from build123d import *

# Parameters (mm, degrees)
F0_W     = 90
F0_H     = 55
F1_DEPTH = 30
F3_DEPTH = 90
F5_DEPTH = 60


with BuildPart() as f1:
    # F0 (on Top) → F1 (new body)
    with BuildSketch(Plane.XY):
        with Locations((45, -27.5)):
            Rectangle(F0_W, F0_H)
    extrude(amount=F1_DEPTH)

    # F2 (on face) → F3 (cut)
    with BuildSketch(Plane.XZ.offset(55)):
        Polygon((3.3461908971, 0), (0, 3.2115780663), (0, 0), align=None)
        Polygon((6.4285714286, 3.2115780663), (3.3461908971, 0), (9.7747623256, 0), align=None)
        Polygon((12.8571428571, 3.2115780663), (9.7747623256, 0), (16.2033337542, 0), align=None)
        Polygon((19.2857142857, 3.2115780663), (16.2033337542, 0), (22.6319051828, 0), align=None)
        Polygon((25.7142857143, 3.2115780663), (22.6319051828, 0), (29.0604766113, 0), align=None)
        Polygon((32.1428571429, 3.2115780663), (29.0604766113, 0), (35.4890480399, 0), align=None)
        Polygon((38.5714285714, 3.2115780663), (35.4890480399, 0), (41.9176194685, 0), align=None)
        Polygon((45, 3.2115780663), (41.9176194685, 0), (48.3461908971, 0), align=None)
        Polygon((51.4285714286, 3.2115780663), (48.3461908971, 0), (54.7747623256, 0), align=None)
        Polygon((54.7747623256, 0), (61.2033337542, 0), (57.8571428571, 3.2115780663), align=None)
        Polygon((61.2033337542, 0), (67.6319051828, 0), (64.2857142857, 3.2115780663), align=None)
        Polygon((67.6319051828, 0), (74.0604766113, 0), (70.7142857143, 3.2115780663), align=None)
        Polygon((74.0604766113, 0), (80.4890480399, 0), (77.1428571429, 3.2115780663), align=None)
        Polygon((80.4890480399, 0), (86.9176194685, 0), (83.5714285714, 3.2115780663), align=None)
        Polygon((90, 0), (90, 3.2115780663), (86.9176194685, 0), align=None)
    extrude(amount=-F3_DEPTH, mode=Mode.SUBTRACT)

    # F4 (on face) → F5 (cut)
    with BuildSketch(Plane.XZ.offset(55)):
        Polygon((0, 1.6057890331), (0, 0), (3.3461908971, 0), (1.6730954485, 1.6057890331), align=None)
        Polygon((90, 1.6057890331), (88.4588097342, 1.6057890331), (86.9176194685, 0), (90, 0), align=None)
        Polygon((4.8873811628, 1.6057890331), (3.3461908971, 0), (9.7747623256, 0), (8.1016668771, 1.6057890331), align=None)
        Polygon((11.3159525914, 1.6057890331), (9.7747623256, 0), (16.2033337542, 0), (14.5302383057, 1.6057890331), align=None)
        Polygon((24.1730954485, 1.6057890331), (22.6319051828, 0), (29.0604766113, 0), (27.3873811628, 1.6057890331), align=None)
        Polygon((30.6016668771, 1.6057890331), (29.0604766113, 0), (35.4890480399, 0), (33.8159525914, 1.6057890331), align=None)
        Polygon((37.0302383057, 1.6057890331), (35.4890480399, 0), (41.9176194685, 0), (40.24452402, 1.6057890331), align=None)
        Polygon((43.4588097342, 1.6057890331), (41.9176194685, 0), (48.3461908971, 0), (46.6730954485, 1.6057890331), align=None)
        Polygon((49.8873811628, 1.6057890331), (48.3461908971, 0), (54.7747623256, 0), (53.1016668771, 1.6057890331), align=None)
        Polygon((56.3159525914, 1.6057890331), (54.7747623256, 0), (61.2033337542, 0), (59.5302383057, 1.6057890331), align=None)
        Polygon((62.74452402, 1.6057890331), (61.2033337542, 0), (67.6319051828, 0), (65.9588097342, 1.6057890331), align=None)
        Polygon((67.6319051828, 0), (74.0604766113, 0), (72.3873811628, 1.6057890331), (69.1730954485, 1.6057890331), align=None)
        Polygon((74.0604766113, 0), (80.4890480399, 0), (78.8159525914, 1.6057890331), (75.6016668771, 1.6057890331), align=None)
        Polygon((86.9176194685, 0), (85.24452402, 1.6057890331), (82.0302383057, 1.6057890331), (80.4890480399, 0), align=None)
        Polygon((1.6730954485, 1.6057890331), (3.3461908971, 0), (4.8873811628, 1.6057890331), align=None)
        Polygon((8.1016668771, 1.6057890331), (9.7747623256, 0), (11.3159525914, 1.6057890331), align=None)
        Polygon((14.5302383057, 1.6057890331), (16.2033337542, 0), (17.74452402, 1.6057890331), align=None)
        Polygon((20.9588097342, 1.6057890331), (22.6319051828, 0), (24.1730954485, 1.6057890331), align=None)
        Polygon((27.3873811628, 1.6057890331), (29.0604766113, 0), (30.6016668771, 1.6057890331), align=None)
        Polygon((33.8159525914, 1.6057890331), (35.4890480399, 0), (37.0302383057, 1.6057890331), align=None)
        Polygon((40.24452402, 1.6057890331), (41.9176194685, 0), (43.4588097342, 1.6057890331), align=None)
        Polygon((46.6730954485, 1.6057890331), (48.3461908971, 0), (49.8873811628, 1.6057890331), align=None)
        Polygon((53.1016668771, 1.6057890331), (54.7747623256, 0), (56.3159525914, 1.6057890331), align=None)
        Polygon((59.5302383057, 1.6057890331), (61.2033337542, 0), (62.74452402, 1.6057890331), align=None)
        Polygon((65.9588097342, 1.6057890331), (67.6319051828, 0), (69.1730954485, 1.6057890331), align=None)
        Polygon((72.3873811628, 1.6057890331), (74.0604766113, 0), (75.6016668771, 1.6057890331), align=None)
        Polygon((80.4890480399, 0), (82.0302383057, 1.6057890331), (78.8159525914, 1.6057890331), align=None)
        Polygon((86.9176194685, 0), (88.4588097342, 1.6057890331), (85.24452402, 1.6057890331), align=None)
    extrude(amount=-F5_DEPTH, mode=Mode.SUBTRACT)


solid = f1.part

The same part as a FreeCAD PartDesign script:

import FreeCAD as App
import Part
import Sketcher

V = App.Vector
Q = App.Units.Quantity

doc = App.newDocument("Part")
body = doc.addObject("PartDesign::Body", "Body")

sketch1 = body.newObject("Sketcher::SketchObject", "Sketch")
sketch1.AttachmentSupport = (doc.getObject("XY_Plane"), [""])
sketch1.MapMode = "FlatFace"
sketch1.addGeometry([
    Part.LineSegment(V(0, 0, 0), V(0, -55, 0)),
    Part.LineSegment(V(0, -55, 0), V(90, -55, 0)),
    Part.LineSegment(V(90, -55, 0), V(90, 0, 0)),
    Part.LineSegment(V(90, 0, 0), V(0, 0, 0)),
], False)
sketch1.addConstraint([
    Sketcher.Constraint("Coincident", 0, 2, 1, 1),
    Sketcher.Constraint("Coincident", 1, 2, 2, 1),
    Sketcher.Constraint("Coincident", 2, 2, 3, 1),
    Sketcher.Constraint("Coincident", 3, 2, 0, 1),
    Sketcher.Constraint("Vertical", 0),
    Sketcher.Constraint("Horizontal", 1),
    Sketcher.Constraint("Vertical", 2),
    Sketcher.Constraint("Horizontal", 3),
    Sketcher.Constraint("Coincident", 3, 2, -1, 1),
    Sketcher.Constraint("DistanceX", 1, 1, 1, 2, Q("90 mm")),
    Sketcher.Constraint("DistanceY", 0, 2, 0, 1, Q("55 mm")),
])
pad1 = body.newObject("PartDesign::Pad", "Pad")
pad1.Profile = sketch1
pad1.Length = 30

sketch2 = body.newObject("Sketcher::SketchObject", "Sketch001")
sketch2.AttachmentSupport = (doc.getObject("XZ_Plane"), [""])
sketch2.MapMode = "FlatFace"
sketch2.AttachmentOffset = App.Placement(V(0, 0, 55), App.Rotation())
sketch2.addGeometry([
    Part.LineSegment(V(3.3, 0, 0), V(0, 3.2, 0)),
    Part.LineSegment(V(0, 3.2, 0), V(0, 0, 0)),
    Part.LineSegment(V(0, 0, 0), V(3.3, 0, 0)),
    Part.LineSegment(V(6.4, 3.2, 0), V(3.3, 0, 0)),
    Part.LineSegment(V(3.3, 0, 0), V(9.8, 0, 0)),
    Part.LineSegment(V(9.8, 0, 0), V(6.4, 3.2, 0)),
    Part.LineSegment(V(12.9, 3.2, 0), V(9.8, 0, 0)),
    Part.LineSegment(V(9.8, 0, 0), V(16.2, 0, 0)),
    Part.LineSegment(V(16.2, 0, 0), V(12.9, 3.2, 0)),
    Part.LineSegment(V(19.3, 3.2, 0), V(16.2, 0, 0)),
    Part.LineSegment(V(16.2, 0, 0), V(22.6, 0, 0)),
    Part.LineSegment(V(22.6, 0, 0), V(19.3, 3.2, 0)),
    Part.LineSegment(V(25.7, 3.2, 0), V(22.6, 0, 0)),
    Part.LineSegment(V(22.6, 0, 0), V(29.1, 0, 0)),
    Part.LineSegment(V(29.1, 0, 0), V(25.7, 3.2, 0)),
    Part.LineSegment(V(32.1, 3.2, 0), V(29.1, 0, 0)),
    Part.LineSegment(V(29.1, 0, 0), V(35.5, 0, 0)),
    Part.LineSegment(V(35.5, 0, 0), V(32.1, 3.2, 0)),
    Part.LineSegment(V(38.6, 3.2, 0), V(35.5, 0, 0)),
    Part.LineSegment(V(35.5, 0, 0), V(41.9, 0, 0)),
    Part.LineSegment(V(41.9, 0, 0), V(38.6, 3.2, 0)),
    Part.LineSegment(V(45, 3.2, 0), V(41.9, 0, 0)),
    Part.LineSegment(V(41.9, 0, 0), V(48.3, 0, 0)),
    Part.LineSegment(V(48.3, 0, 0), V(45, 3.2, 0)),
    Part.LineSegment(V(51.4, 3.2, 0), V(48.3, 0, 0)),
    Part.LineSegment(V(48.3, 0, 0), V(54.8, 0, 0)),
    Part.LineSegment(V(54.8, 0, 0), V(51.4, 3.2, 0)),
    Part.LineSegment(V(54.8, 0, 0), V(61.2, 0, 0)),
    Part.LineSegment(V(61.2, 0, 0), V(57.9, 3.2, 0)),
    Part.LineSegment(V(57.9, 3.2, 0), V(54.8, 0, 0)),
    Part.LineSegment(V(61.2, 0, 0), V(67.6, 0, 0)),
    Part.LineSegment(V(67.6, 0, 0), V(64.3, 3.2, 0)),
    Part.LineSegment(V(64.3, 3.2, 0), V(61.2, 0, 0)),
    Part.LineSegment(V(67.6, 0, 0), V(74.1, 0, 0)),
    Part.LineSegment(V(74.1, 0, 0), V(70.7, 3.2, 0)),
    Part.LineSegment(V(70.7, 3.2, 0), V(67.6, 0, 0)),
    Part.LineSegment(V(74.1, 0, 0), V(80.5, 0, 0)),
    Part.LineSegment(V(80.5, 0, 0), V(77.1, 3.2, 0)),
    Part.LineSegment(V(77.1, 3.2, 0), V(74.1, 0, 0)),
    Part.LineSegment(V(80.5, 0, 0), V(86.9, 0, 0)),
    Part.LineSegment(V(86.9, 0, 0), V(83.6, 3.2, 0)),
    Part.LineSegment(V(83.6, 3.2, 0), V(80.5, 0, 0)),
    Part.LineSegment(V(90, 0, 0), V(90, 3.2, 0)),
    Part.LineSegment(V(90, 3.2, 0), V(86.9, 0, 0)),
    Part.LineSegment(V(86.9, 0, 0), V(90, 0, 0)),
], False)
sketch2.addConstraint([
    Sketcher.Constraint("Coincident", 0, 2, 1, 1),
    Sketcher.Constraint("Coincident", 1, 2, 2, 1),
    Sketcher.Constraint("Coincident", 2, 2, 0, 1),
    Sketcher.Constraint("Coincident", 3, 2, 4, 1),
    Sketcher.Constraint("Coincident", 4, 2, 5, 1),
    Sketcher.Constraint("Coincident", 5, 2, 3, 1),
    Sketcher.Constraint("Coincident", 6, 2, 7, 1),
    Sketcher.Constraint("Coincident", 7, 2, 8, 1),
    Sketcher.Constraint("Coincident", 8, 2, 6, 1),
    Sketcher.Constraint("Coincident", 9, 2, 10, 1),
    Sketcher.Constraint("Coincident", 10, 2, 11, 1),
    Sketcher.Constraint("Coincident", 11, 2, 9, 1),
    Sketcher.Constraint("Coincident", 12, 2, 13, 1),
    Sketcher.Constraint("Coincident", 13, 2, 14, 1),
    Sketcher.Constraint("Coincident", 14, 2, 12, 1),
    Sketcher.Constraint("Coincident", 15, 2, 16, 1),
    Sketcher.Constraint("Coincident", 16, 2, 17, 1),
    Sketcher.Constraint("Coincident", 17, 2, 15, 1),
    Sketcher.Constraint("Coincident", 18, 2, 19, 1),
    Sketcher.Constraint("Coincident", 19, 2, 20, 1),
    Sketcher.Constraint("Coincident", 20, 2, 18, 1),
    Sketcher.Constraint("Coincident", 21, 2, 22, 1),
    Sketcher.Constraint("Coincident", 22, 2, 23, 1),
    Sketcher.Constraint("Coincident", 23, 2, 21, 1),
    Sketcher.Constraint("Coincident", 24, 2, 25, 1),
    Sketcher.Constraint("Coincident", 25, 2, 26, 1),
    Sketcher.Constraint("Coincident", 26, 2, 24, 1),
    Sketcher.Constraint("Coincident", 27, 2, 28, 1),
    Sketcher.Constraint("Coincident", 28, 2, 29, 1),
    Sketcher.Constraint("Coincident", 29, 2, 27, 1),
    Sketcher.Constraint("Coincident", 30, 2, 31, 1),
    Sketcher.Constraint("Coincident", 31, 2, 32, 1),
    Sketcher.Constraint("Coincident", 32, 2, 30, 1),
    Sketcher.Constraint("Coincident", 33, 2, 34, 1),
    Sketcher.Constraint("Coincident", 34, 2, 35, 1),
    Sketcher.Constraint("Coincident", 35, 2, 33, 1),
    Sketcher.Constraint("Coincident", 36, 2, 37, 1),
    Sketcher.Constraint("Coincident", 37, 2, 38, 1),
    Sketcher.Constraint("Coincident", 38, 2, 36, 1),
    Sketcher.Constraint("Coincident", 39, 2, 40, 1),
    Sketcher.Constraint("Coincident", 40, 2, 41, 1),
    Sketcher.Constraint("Coincident", 41, 2, 39, 1),
    Sketcher.Constraint("Coincident", 42, 2, 43, 1),
    Sketcher.Constraint("Coincident", 43, 2, 44, 1),
    Sketcher.Constraint("Coincident", 44, 2, 42, 1),
    Sketcher.Constraint("Vertical", 1),
    Sketcher.Constraint("Horizontal", 2),
    Sketcher.Constraint("Horizontal", 4),
    Sketcher.Constraint("Horizontal", 7),
    Sketcher.Constraint("Horizontal", 10),
    Sketcher.Constraint("Horizontal", 13),
    Sketcher.Constraint("Horizontal", 16),
    Sketcher.Constraint("Horizontal", 19),
    Sketcher.Constraint("Horizontal", 22),
    Sketcher.Constraint("Horizontal", 25),
    Sketcher.Constraint("Horizontal", 27),
    Sketcher.Constraint("Horizontal", 30),
    Sketcher.Constraint("Horizontal", 33),
    Sketcher.Constraint("Horizontal", 36),
    Sketcher.Constraint("Horizontal", 39),
    Sketcher.Constraint("Vertical", 42),
    Sketcher.Constraint("Horizontal", 44),
    Sketcher.Constraint("Coincident", 1, 2, -1, 1),
    Sketcher.Constraint("Coincident", 3, 2, 2, 2),
    Sketcher.Constraint("Coincident", 6, 2, 4, 2),
    Sketcher.Constraint("Coincident", 9, 2, 7, 2),
    Sketcher.Constraint("Coincident", 12, 2, 10, 2),
    Sketcher.Constraint("Coincident", 15, 2, 13, 2),
    Sketcher.Constraint("Coincident", 18, 2, 16, 2),
    Sketcher.Constraint("Coincident", 21, 2, 19, 2),
    Sketcher.Constraint("Coincident", 24, 2, 22, 2),
    Sketcher.Constraint("Coincident", 29, 2, 25, 2),
    Sketcher.Constraint("Coincident", 32, 2, 27, 2),
    Sketcher.Constraint("Coincident", 35, 2, 30, 2),
    Sketcher.Constraint("Coincident", 38, 2, 33, 2),
    Sketcher.Constraint("Coincident", 41, 2, 36, 2),
    Sketcher.Constraint("Coincident", 43, 2, 39, 2),
    Sketcher.Constraint("Perpendicular", 0, 3),
    Sketcher.Constraint("Perpendicular", 3, 5),
    Sketcher.Constraint("Perpendicular", 5, 6),
    Sketcher.Constraint("Perpendicular", 6, 8),
    Sketcher.Constraint("Perpendicular", 8, 9),
    Sketcher.Constraint("Perpendicular", 9, 11),
    Sketcher.Constraint("Perpendicular", 11, 12),
    Sketcher.Constraint("Perpendicular", 12, 14),
    Sketcher.Constraint("Perpendicular", 14, 15),
    Sketcher.Constraint("Perpendicular", 15, 17),
    Sketcher.Constraint("Perpendicular", 17, 18),
    Sketcher.Constraint("Perpendicular", 18, 20),
    Sketcher.Constraint("Perpendicular", 20, 21),
    Sketcher.Constraint("Perpendicular", 21, 23),
    Sketcher.Constraint("Perpendicular", 23, 24),
    Sketcher.Constraint("Perpendicular", 24, 26),
    Sketcher.Constraint("Parallel", 26, 28),
    Sketcher.Constraint("Perpendicular", 28, 29),
    Sketcher.Constraint("Perpendicular", 29, 31),
    Sketcher.Constraint("Perpendicular", 31, 32),
    Sketcher.Constraint("Perpendicular", 32, 34),
    Sketcher.Constraint("Perpendicular", 34, 35),
    Sketcher.Constraint("Perpendicular", 35, 37),
    Sketcher.Constraint("Perpendicular", 37, 38),
    Sketcher.Constraint("Perpendicular", 38, 40),
    Sketcher.Constraint("Perpendicular", 40, 41),
    Sketcher.Constraint("Parallel", 41, 43),
    Sketcher.Constraint("Horizontal", 0, 2, 5, 2),
    Sketcher.Constraint("Horizontal", 5, 2, 8, 2),
    Sketcher.Constraint("Horizontal", 8, 2, 11, 2),
    Sketcher.Constraint("Horizontal", 11, 2, 14, 2),
    Sketcher.Constraint("Horizontal", 14, 2, 17, 2),
    Sketcher.Constraint("Horizontal", 17, 2, 20, 2),
    Sketcher.Constraint("Horizontal", 20, 2, 23, 2),
    Sketcher.Constraint("Horizontal", 23, 2, 26, 2),
    Sketcher.Constraint("Horizontal", 26, 2, 28, 2),
    Sketcher.Constraint("Horizontal", 28, 2, 31, 2),
    Sketcher.Constraint("Horizontal", 31, 2, 34, 2),
    Sketcher.Constraint("Horizontal", 34, 2, 37, 2),
    Sketcher.Constraint("Horizontal", 37, 2, 40, 2),
    Sketcher.Constraint("Horizontal", 40, 2, 42, 2),
    Sketcher.Constraint("DistanceX", -1, 1, 23, 2, Q("45 mm")),
    Sketcher.Constraint("DistanceX", 2, 1, 2, 2, Q("3.346191 mm")),
])
pocket1 = body.newObject("PartDesign::Pocket", "Pocket")
pocket1.Profile = sketch2
pocket1.Length = 90

sketch3 = body.newObject("Sketcher::SketchObject", "Sketch002")
sketch3.AttachmentSupport = (doc.getObject("XZ_Plane"), [""])
sketch3.MapMode = "FlatFace"
sketch3.AttachmentOffset = App.Placement(V(0, 0, 55), App.Rotation())
sketch3.addGeometry([
    Part.LineSegment(V(0, 1.6, 0), V(0, 0, 0)),
    Part.LineSegment(V(0, 0, 0), V(16.2, 0, 0)),
    Part.LineSegment(V(16.2, 0, 0), V(17.7, 1.6, 0)),
    Part.LineSegment(V(17.7, 1.6, 0), V(0, 1.6, 0)),
    Part.LineSegment(V(90, 1.6, 0), V(21, 1.6, 0)),
    Part.LineSegment(V(21, 1.6, 0), V(22.6, 0, 0)),
    Part.LineSegment(V(22.6, 0, 0), V(90, 0, 0)),
    Part.LineSegment(V(90, 0, 0), V(90, 1.6, 0)),
], False)
sketch3.addConstraint([
    Sketcher.Constraint("Coincident", 0, 2, 1, 1),
    Sketcher.Constraint("Coincident", 1, 2, 2, 1),
    Sketcher.Constraint("Coincident", 2, 2, 3, 1),
    Sketcher.Constraint("Coincident", 3, 2, 0, 1),
    Sketcher.Constraint("Coincident", 4, 2, 5, 1),
    Sketcher.Constraint("Coincident", 5, 2, 6, 1),
    Sketcher.Constraint("Coincident", 6, 2, 7, 1),
    Sketcher.Constraint("Coincident", 7, 2, 4, 1),
    Sketcher.Constraint("Vertical", 0),
    Sketcher.Constraint("Horizontal", 1),
    Sketcher.Constraint("Horizontal", 3),
    Sketcher.Constraint("Horizontal", 4),
    Sketcher.Constraint("Horizontal", 6),
    Sketcher.Constraint("Vertical", 7),
    Sketcher.Constraint("Coincident", 0, 2, -1, 1),
    Sketcher.Constraint("PointOnObject", 5, 2, -1),
    Sketcher.Constraint("Perpendicular", 2, 5),
    Sketcher.Constraint("Horizontal", 3, 2, 4, 2),
    Sketcher.Constraint("DistanceX", -1, 1, 6, 2, Q("90 mm")),
    Sketcher.Constraint("DistanceX", 4, 2, 4, 1, Q("69.04119 mm")),
    Sketcher.Constraint("DistanceY", 0, 2, 0, 1, Q("1.605789 mm")),
    Sketcher.Constraint("Distance", 2, Q("2.225719 mm")),
    Sketcher.Constraint("DistanceX", 1, 1, 1, 2, Q("16.203334 mm")),
])
pocket2 = body.newObject("PartDesign::Pocket", "Pocket001")
pocket2.Profile = sketch3
pocket2.Length = 60

doc.recompute()
